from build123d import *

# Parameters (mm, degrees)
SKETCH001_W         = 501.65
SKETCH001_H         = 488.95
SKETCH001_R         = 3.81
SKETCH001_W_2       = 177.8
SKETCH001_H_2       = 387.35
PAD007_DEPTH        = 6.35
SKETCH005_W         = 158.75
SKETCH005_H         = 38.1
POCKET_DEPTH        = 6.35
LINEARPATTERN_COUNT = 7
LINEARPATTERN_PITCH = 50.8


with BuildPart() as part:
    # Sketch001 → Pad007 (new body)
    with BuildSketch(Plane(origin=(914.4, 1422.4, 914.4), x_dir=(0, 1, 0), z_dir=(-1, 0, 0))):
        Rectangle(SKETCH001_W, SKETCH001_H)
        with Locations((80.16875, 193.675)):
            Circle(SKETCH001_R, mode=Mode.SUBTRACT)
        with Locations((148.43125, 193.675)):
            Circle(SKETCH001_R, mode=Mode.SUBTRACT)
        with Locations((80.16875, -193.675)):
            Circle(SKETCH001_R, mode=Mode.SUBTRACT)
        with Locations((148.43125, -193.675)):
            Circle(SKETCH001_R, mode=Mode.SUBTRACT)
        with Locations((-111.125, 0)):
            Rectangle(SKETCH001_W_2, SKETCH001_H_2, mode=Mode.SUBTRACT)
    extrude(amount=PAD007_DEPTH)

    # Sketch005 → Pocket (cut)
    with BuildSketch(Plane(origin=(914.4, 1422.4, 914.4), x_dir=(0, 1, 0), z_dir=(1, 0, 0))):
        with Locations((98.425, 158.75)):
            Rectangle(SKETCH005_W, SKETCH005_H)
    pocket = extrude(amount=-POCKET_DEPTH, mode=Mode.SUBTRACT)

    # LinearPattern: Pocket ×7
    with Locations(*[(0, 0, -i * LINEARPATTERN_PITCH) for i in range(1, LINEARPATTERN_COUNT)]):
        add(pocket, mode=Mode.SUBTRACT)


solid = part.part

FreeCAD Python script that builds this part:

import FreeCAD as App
import Part
import Sketcher
Q = App.Units.Quantity


def add_polygon(sketch, points):
    """Adds a closed chain of lines whose ends are joined by coincident constraints."""
    first, n = sketch.GeometryCount, len(points)
    for a, b in zip(points, points[1:] + points[:1]):
        sketch.addGeometry(Part.LineSegment(App.Vector(*a, 0), App.Vector(*b, 0)), False)
    for i in range(n):
        sketch.addConstraint(Sketcher.Constraint("Coincident", first + i, 2, first + (i + 1) % n, 1))

doc = App.newDocument("Part")
params = doc.addObject("Spreadsheet::Sheet", "Params")
for row, (alias, value) in enumerate([
    ("sketch1_diameter", "0.3 in"),
    ("sketch1_width", "7 in"),
    ("sketch1_width2", "19.75 in"),
    ("sketch1_height", "19.25 in"),
    ("pad1_length", "0.25 in"),
    ("sketch2_height", "1.5 in"),
    ("sketch2_width", "6.25 in"),
    ("pocket1_length", "0.25 in"),
    ("linearpattern_pitch", "2 in"),
], start=1):
    params.set(f"A{row}", alias)
    params.set(f"B{row}", "=" + value)
    params.setAlias(f"B{row}", alias)

body = doc.addObject("PartDesign::Body", "Body")

# Sketch on YZ plane
sketch1 = body.newObject("Sketcher::SketchObject", "Sketch")
sketch1.AttachmentSupport = (doc.getObject("YZ_Plane"), [""])
sketch1.MapMode = "FlatFace"
sketch1.AttachmentOffset = App.Placement(App.Vector(0, 0, 36 * 25.4), App.Rotation())
add_polygon(sketch1, [(1171.6, 669.9), (1171.6, 1158.9), (1673.2, 1158.9), (1673.2, 669.9)])  # lines 0-3
sketch1.addGeometry(Part.Circle(App.Vector(1502.6, 1108.1, 0), App.Vector(0, 0, 1), 3.8), False)  # 4
sketch1.addGeometry(Part.Circle(App.Vector(1570.8, 1108.1, 0), App.Vector(0, 0, 1), 3.8), False)  # 5
add_polygon(sketch1, [(1400.2, 1108.1), (1222.4, 1108.1), (1222.4, 720.7), (1400.2, 720.7)])  # lines 6-9
sketch1.addGeometry(Part.Circle(App.Vector(1502.6, 720.7, 0), App.Vector(0, 0, 1), 3.8), False)  # 10
sketch1.addGeometry(Part.Circle(App.Vector(1570.8, 720.7, 0), App.Vector(0, 0, 1), 3.8), False)  # 11
sketch1.addConstraint([
    Sketcher.Constraint("Vertical", 0),
    Sketcher.Constraint("Horizontal", 1),
    Sketcher.Constraint("Vertical", 2),
    Sketcher.Constraint("Horizontal", 3),
    Sketcher.Constraint("Horizontal", 6),
    Sketcher.Constraint("Vertical", 7),
    Sketcher.Constraint("Horizontal", 8),
    Sketcher.Constraint("Vertical", 9),
    Sketcher.Constraint("Equal", 4, 5),
    Sketcher.Constraint("Equal", 5, 10),
    Sketcher.Constraint("Equal", 10, 11),
    Sketcher.Constraint("Horizontal", 4, 3, 5, 3),
    Sketcher.Constraint("Horizontal", 10, 3, 11, 3),
    Sketcher.Constraint("Horizontal", 5, 3, 6, 2),
    Sketcher.Constraint("Horizontal", 11, 3, 7, 2),
    Sketcher.Constraint("Vertical", 4, 3, 10, 3),
    Sketcher.Constraint("Vertical", 5, 3, 11, 3),
    Sketcher.Constraint("Diameter", 4, Q("0.3 in")),
    Sketcher.Constraint("DistanceX", 6, 2, 6, 1, Q("7 in")),
    Sketcher.Constraint("DistanceY", 4, 3, 0, 2, Q("2 in")),
    Sketcher.Constraint("DistanceY", 2, 2, 11, 3, Q("2 in")),
    Sketcher.Constraint("DistanceX", 0, 2, 6, 2, Q("2 in")),
    Sketcher.Constraint("DistanceX", 1, 1, 1, 2, Q("19.75 in")),
    Sketcher.Constraint("DistanceY", 0, 1, 0, 2, Q("19.25 in")),
    Sketcher.Constraint("DistanceX", -1, 1, 4, 3, Q("59.15625 in")),
    Sketcher.Constraint("DistanceY", -1, 1, 4, 3, Q("43.625 in")),
    Sketcher.Constraint("DistanceX", -1, 1, 5, 3, Q("61.84375 in")),
    Sketcher.Constraint("DistanceX", -1, 1, 0, 2, Q("46.125 in")),
])
sketch1.setExpression("Constraints[25]", "Params.sketch1_diameter")
sketch1.setExpression("Constraints[26]", "Params.sketch1_width")
sketch1.setExpression("Constraints[30]", "Params.sketch1_width2")
sketch1.setExpression("Constraints[31]", "Params.sketch1_height")
pad1 = body.newObject("PartDesign::Pad", "Pad")
pad1.Profile = sketch1
pad1.setExpression("Length", "Params.pad1_length")
pad1.Reversed = True

# Sketch on YZ plane
sketch2 = body.newObject("Sketcher::SketchObject", "Sketch001")
sketch2.AttachmentSupport = (doc.getObject("YZ_Plane"), [""])
sketch2.MapMode = "FlatFace"
sketch2.AttachmentOffset = App.Placement(App.Vector(0, 0, 36 * 25.4), App.Rotation())
add_polygon(sketch2, [(1441, 1092), (1441, 1054), (1600, 1054), (1600, 1092)])  # lines 0-3
sketch2.addConstraint([
    Sketcher.Constraint("Vertical", 0),
    Sketcher.Constraint("Horizontal", 1),
    Sketcher.Constraint("Vertical", 2),
    Sketcher.Constraint("Horizontal", 3),
    Sketcher.Constraint("DistanceY", 0, 2, 0, 1, Q("1.5 in")),
    Sketcher.Constraint("DistanceX", -1, 1, 1, 2, Q("63 in")),
    Sketcher.Constraint("DistanceY", -1, 1, 2, 2, Q("43 in")),
    Sketcher.Constraint("DistanceX", 1, 1, 1, 2, Q("6.25 in")),
])
sketch2.setExpression("Constraints[8]", "Params.sketch2_height")
sketch2.setExpression("Constraints[11]", "Params.sketch2_width")
pocket1 = body.newObject("PartDesign::Pocket", "Pocket")
pocket1.Profile = sketch2
pocket1.setExpression("Length", "Params.pocket1_length")
doc.recompute()

linearpattern = body.newObject("PartDesign::LinearPattern", "LinearPattern")
linearpattern.Originals = [pocket1]
linearpattern.Direction = (doc.getObject("Z_Axis"), [""])
linearpattern.Mode = "offset"
linearpattern.setExpression("Offset", "Params.linearpattern_pitch")
linearpattern.Occurrences = 7
linearpattern.Reversed = True
body.Tip = linearpattern

doc.recompute()
